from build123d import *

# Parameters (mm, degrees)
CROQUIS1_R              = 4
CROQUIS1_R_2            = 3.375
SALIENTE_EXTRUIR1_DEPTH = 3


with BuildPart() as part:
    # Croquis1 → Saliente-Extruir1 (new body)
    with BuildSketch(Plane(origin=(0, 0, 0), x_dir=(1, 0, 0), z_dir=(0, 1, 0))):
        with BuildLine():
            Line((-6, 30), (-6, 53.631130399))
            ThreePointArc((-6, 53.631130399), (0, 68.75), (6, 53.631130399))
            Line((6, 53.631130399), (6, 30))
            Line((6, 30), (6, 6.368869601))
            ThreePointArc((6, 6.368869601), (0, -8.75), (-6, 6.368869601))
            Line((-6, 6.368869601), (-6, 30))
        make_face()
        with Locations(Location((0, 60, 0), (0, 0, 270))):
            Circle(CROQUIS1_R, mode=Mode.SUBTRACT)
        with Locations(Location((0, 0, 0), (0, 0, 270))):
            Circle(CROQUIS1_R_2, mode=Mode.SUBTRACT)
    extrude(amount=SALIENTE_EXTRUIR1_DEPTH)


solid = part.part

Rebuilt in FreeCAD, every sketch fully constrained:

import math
import FreeCAD as App
import Part
import Sketcher
from FreeCAD import Vector

doc = App.newDocument("Part")
params = doc.addObject("Spreadsheet::Sheet", "Params")
for row, (alias, value) in enumerate([
    ("sketch1_diameter", "8 mm"),
    ("sketch1_diameter2", "6.75 mm"),
    ("sketch1_radius", "8.75 mm"),
    ("pad1_length", "3 mm"),
], start=1):
    params.set(f"A{row}", alias)
    params.set(f"B{row}", "=" + value)
    params.setAlias(f"B{row}", alias)

body = doc.addObject("PartDesign::Body", "Body")

# Sketch on XZ plane
sketch1 = body.newObject("Sketcher::SketchObject", "Sketch")
sketch1.AttachmentSupport = (doc.getObject("XZ_Plane"), [""])
sketch1.MapMode = "FlatFace"
sketch1.addGeometry([
    Part.ArcOfCircle(Part.Circle(Vector(0, -60, 0), Vector(0, 0, 1), 8.8), math.radians(133), math.radians(407)),  # 0
    Part.LineSegment(Vector(-6, -53.6, 0), Vector(-6, -6.4, 0)),  # 1
    Part.ArcOfCircle(Part.Circle(Vector(0, 0, 0), Vector(0, 0, 1), 8.8), math.radians(-47), math.radians(227)),  # 2
    Part.LineSegment(Vector(6, -6.4, 0), Vector(6, -53.6, 0)),  # 3
    Part.Circle(Vector(0, 0, 0), Vector(0, 0, 1), 3.4),  # 4
    Part.Circle(Vector(0, -60, 0), Vector(0, 0, 1), 4),  # 5
], False)
sketch1.addConstraint([
    Sketcher.Constraint("Coincident", 0, 1, 1, 1),
    Sketcher.Constraint("Coincident", 1, 2, 2, 2),
    Sketcher.Constraint("Coincident", 2, 1, 3, 1),
    Sketcher.Constraint("Coincident", 3, 2, 0, 2),
    Sketcher.Constraint("Vertical", 1),
    Sketcher.Constraint("Vertical", 3),
    Sketcher.Constraint("Coincident", 2, 3, -1, 1),
    Sketcher.Constraint("Coincident", 4, 3, -1, 1),
    Sketcher.Constraint("Coincident", 5, 3, 0, 3),
    Sketcher.Constraint("Equal", 0, 2),
    Sketcher.Constraint("Symmetric", 0, 1, 3, 2, -2),
    Sketcher.Constraint("Diameter", 5, 8.0),
    Sketcher.Constraint("Diameter", 4, 6.75),
    Sketcher.Constraint("Radius", 0, 8.75),
    Sketcher.Constraint("DistanceY", 0, 3, -1, 1, 60.0),
    Sketcher.Constraint("DistanceX", 0, 1, -1, 1, 6.0),
])
sketch1.setExpression("Constraints[11]", "Params.sketch1_diameter")
sketch1.setExpression("Constraints[12]", "Params.sketch1_diameter2")
sketch1.setExpression("Constraints[13]", "Params.sketch1_radius")
pad1 = body.newObject("PartDesign::Pad", "Pad")
pad1.Profile = sketch1
pad1.setExpression("Length", "Params.pad1_length")
pad1.Reversed = True

doc.recompute()
